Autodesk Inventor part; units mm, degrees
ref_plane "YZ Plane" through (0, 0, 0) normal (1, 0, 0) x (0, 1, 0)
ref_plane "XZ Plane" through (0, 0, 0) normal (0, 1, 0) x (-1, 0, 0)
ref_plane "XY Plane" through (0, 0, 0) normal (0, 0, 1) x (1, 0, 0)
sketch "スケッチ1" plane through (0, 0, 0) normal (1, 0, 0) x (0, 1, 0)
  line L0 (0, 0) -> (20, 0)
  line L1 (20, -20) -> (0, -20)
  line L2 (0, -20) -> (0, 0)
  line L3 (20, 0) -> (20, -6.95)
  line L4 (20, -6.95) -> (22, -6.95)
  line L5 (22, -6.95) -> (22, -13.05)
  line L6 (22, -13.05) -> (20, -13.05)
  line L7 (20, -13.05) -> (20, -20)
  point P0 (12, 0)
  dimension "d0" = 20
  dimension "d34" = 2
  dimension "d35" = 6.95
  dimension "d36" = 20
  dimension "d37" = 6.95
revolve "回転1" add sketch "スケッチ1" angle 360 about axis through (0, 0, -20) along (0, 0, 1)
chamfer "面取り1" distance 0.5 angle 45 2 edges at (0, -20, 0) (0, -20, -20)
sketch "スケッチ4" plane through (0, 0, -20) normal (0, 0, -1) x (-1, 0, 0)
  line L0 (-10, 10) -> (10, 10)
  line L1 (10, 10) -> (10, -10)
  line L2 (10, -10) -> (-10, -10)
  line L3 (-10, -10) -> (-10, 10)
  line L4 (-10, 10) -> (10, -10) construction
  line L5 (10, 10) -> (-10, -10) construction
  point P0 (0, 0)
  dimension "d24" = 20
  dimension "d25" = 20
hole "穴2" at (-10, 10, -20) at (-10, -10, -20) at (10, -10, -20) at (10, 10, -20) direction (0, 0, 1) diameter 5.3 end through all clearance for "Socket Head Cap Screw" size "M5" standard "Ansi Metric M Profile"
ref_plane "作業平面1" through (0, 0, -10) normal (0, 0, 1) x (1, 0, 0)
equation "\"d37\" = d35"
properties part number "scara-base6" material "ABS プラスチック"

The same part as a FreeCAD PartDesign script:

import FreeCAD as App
import Part
import Sketcher

V = App.Vector
Q = App.Units.Quantity


def edges_at(feature, points):
    """Names of the edges that pass closest to the given points."""
    edges = feature.Shape.Edges
    near = lambda p: min(range(len(edges)), key=lambda i: edges[i].distToShape(Part.Vertex(*p))[0])
    return sorted({f"Edge{near(p) + 1}" for p in points})

doc = App.newDocument("Part")
params = doc.addObject("Spreadsheet::Sheet", "Params")
for row, (alias, value) in enumerate([
    ("sketch1_width", "20 mm"),
    ("sketch1_width2", "2 mm"),
    ("sketch1_height", "6.95 mm"),
    ("revolution_angle", "360 deg"),
    ("chamfer_size", "0.5 mm"),
    ("sketch2_diameter", "5.3 mm"),
    ("hole_diameter", "5.3 mm"),
], start=1):
    params.set(f"A{row}", alias)
    params.set(f"B{row}", "=" + value)
    params.setAlias(f"B{row}", alias)

body = doc.addObject("PartDesign::Body", "Body")

sketch1 = body.newObject("Sketcher::SketchObject", "Sketch")
sketch1.AttachmentSupport = (doc.getObject("YZ_Plane"), [""])
sketch1.MapMode = "FlatFace"
sketch1.addGeometry([
    Part.LineSegment(V(20, 0, 0), V(0, 0, 0)),
    Part.LineSegment(V(0, 0, 0), V(0, -20, 0)),
    Part.LineSegment(V(0, -20, 0), V(20, -20, 0)),
    Part.LineSegment(V(20, -20, 0), V(20, -13.1, 0)),
    Part.LineSegment(V(20, -13.1, 0), V(22, -13.1, 0)),
    Part.LineSegment(V(22, -13.1, 0), V(22, -7, 0)),
    Part.LineSegment(V(22, -7, 0), V(20, -7, 0)),
    Part.LineSegment(V(20, -7, 0), V(20, 0, 0)),
], False)
sketch1.addConstraint([
    Sketcher.Constraint("Coincident", 0, 2, 1, 1),
    Sketcher.Constraint("Coincident", 1, 2, 2, 1),
    Sketcher.Constraint("Coincident", 2, 2, 3, 1),
    Sketcher.Constraint("Coincident", 3, 2, 4, 1),
    Sketcher.Constraint("Coincident", 4, 2, 5, 1),
    Sketcher.Constraint("Coincident", 5, 2, 6, 1),
    Sketcher.Constraint("Coincident", 6, 2, 7, 1),
    Sketcher.Constraint("Coincident", 7, 2, 0, 1),
    Sketcher.Constraint("Horizontal", 0),
    Sketcher.Constraint("Vertical", 1),
    Sketcher.Constraint("Horizontal", 2),
    Sketcher.Constraint("Vertical", 3),
    Sketcher.Constraint("Horizontal", 4),
    Sketcher.Constraint("Vertical", 5),
    Sketcher.Constraint("Horizontal", 6),
    Sketcher.Constraint("Vertical", 7),
    Sketcher.Constraint("Coincident", 0, 2, -1, 1),
    Sketcher.Constraint("Vertical", 3, 2, 6, 2),
    Sketcher.Constraint("Equal", 2, 1),
    Sketcher.Constraint("Equal", 3, 7),
    Sketcher.Constraint("DistanceX", 0, 2, 0, 1, Q("20 mm")),
    Sketcher.Constraint("DistanceX", 4, 1, 4, 2, Q("2 mm")),
    Sketcher.Constraint("DistanceY", 3, 1, 3, 2, Q("6.95 mm")),
])
sketch1.setExpression("Constraints[20]", "Params.sketch1_width")
sketch1.setExpression("Constraints[21]", "Params.sketch1_width2")
sketch1.setExpression("Constraints[22]", "Params.sketch1_height")
revolution = body.newObject("PartDesign::Revolution", "Revolution")
revolution.Profile = sketch1
revolution.ReferenceAxis = (sketch1, ["V_Axis"])
revolution.setExpression("Angle", "Params.revolution_angle")
doc.recompute()

chamfer = body.newObject("PartDesign::Chamfer", "Chamfer")
chamfer.Base = (revolution, edges_at(revolution, [(0, -20, 0), (0, -20, -20)]))
chamfer.setExpression("Size", "Params.chamfer_size")

sketch2 = body.newObject("Sketcher::SketchObject", "Sketch001")
sketch2.AttachmentSupport = (doc.getObject("XY_Plane"), [""])
sketch2.MapMode = "FlatFace"
sketch2.AttachmentOffset = App.Placement(V(0, 0, -20), App.Rotation())
sketch2.addGeometry([
    Part.Circle(V(-10, 10, 0), V(0, 0, 1), 2.6),
    Part.Circle(V(-10, -10, 0), V(0, 0, 1), 2.6),
    Part.Circle(V(10, -10, 0), V(0, 0, 1), 2.6),
    Part.Circle(V(10, 10, 0), V(0, 0, 1), 2.6),
], False)
sketch2.addConstraint([
    Sketcher.Constraint("Equal", 0, 1),
    Sketcher.Constraint("Equal", 1, 2),
    Sketcher.Constraint("Equal", 2, 3),
    Sketcher.Constraint("Symmetric", 0, 3, 2, 3, -1, 1),
    Sketcher.Constraint("Symmetric", 1, 3, 3, 3, -1, 1),
    Sketcher.Constraint("Symmetric", 1, 3, 2, 3, -2),
    Sketcher.Constraint("Diameter", 0, Q("5.3 mm")),
    Sketcher.Constraint("DistanceX", 0, 3, -1, 1, Q("10 mm")),
    Sketcher.Constraint("DistanceY", -1, 1, 0, 3, Q("10 mm")),
])
sketch2.setExpression("Constraints[6]", "Params.sketch2_diameter")
doc.recompute()
hole = body.newObject("PartDesign::Hole", "Hole")
hole.Profile = sketch2
hole.ThreadType = "None"
hole.setExpression("Diameter", "Params.hole_diameter")
hole.DepthType = "ThroughAll"
hole.Reversed = True

doc.recompute()
